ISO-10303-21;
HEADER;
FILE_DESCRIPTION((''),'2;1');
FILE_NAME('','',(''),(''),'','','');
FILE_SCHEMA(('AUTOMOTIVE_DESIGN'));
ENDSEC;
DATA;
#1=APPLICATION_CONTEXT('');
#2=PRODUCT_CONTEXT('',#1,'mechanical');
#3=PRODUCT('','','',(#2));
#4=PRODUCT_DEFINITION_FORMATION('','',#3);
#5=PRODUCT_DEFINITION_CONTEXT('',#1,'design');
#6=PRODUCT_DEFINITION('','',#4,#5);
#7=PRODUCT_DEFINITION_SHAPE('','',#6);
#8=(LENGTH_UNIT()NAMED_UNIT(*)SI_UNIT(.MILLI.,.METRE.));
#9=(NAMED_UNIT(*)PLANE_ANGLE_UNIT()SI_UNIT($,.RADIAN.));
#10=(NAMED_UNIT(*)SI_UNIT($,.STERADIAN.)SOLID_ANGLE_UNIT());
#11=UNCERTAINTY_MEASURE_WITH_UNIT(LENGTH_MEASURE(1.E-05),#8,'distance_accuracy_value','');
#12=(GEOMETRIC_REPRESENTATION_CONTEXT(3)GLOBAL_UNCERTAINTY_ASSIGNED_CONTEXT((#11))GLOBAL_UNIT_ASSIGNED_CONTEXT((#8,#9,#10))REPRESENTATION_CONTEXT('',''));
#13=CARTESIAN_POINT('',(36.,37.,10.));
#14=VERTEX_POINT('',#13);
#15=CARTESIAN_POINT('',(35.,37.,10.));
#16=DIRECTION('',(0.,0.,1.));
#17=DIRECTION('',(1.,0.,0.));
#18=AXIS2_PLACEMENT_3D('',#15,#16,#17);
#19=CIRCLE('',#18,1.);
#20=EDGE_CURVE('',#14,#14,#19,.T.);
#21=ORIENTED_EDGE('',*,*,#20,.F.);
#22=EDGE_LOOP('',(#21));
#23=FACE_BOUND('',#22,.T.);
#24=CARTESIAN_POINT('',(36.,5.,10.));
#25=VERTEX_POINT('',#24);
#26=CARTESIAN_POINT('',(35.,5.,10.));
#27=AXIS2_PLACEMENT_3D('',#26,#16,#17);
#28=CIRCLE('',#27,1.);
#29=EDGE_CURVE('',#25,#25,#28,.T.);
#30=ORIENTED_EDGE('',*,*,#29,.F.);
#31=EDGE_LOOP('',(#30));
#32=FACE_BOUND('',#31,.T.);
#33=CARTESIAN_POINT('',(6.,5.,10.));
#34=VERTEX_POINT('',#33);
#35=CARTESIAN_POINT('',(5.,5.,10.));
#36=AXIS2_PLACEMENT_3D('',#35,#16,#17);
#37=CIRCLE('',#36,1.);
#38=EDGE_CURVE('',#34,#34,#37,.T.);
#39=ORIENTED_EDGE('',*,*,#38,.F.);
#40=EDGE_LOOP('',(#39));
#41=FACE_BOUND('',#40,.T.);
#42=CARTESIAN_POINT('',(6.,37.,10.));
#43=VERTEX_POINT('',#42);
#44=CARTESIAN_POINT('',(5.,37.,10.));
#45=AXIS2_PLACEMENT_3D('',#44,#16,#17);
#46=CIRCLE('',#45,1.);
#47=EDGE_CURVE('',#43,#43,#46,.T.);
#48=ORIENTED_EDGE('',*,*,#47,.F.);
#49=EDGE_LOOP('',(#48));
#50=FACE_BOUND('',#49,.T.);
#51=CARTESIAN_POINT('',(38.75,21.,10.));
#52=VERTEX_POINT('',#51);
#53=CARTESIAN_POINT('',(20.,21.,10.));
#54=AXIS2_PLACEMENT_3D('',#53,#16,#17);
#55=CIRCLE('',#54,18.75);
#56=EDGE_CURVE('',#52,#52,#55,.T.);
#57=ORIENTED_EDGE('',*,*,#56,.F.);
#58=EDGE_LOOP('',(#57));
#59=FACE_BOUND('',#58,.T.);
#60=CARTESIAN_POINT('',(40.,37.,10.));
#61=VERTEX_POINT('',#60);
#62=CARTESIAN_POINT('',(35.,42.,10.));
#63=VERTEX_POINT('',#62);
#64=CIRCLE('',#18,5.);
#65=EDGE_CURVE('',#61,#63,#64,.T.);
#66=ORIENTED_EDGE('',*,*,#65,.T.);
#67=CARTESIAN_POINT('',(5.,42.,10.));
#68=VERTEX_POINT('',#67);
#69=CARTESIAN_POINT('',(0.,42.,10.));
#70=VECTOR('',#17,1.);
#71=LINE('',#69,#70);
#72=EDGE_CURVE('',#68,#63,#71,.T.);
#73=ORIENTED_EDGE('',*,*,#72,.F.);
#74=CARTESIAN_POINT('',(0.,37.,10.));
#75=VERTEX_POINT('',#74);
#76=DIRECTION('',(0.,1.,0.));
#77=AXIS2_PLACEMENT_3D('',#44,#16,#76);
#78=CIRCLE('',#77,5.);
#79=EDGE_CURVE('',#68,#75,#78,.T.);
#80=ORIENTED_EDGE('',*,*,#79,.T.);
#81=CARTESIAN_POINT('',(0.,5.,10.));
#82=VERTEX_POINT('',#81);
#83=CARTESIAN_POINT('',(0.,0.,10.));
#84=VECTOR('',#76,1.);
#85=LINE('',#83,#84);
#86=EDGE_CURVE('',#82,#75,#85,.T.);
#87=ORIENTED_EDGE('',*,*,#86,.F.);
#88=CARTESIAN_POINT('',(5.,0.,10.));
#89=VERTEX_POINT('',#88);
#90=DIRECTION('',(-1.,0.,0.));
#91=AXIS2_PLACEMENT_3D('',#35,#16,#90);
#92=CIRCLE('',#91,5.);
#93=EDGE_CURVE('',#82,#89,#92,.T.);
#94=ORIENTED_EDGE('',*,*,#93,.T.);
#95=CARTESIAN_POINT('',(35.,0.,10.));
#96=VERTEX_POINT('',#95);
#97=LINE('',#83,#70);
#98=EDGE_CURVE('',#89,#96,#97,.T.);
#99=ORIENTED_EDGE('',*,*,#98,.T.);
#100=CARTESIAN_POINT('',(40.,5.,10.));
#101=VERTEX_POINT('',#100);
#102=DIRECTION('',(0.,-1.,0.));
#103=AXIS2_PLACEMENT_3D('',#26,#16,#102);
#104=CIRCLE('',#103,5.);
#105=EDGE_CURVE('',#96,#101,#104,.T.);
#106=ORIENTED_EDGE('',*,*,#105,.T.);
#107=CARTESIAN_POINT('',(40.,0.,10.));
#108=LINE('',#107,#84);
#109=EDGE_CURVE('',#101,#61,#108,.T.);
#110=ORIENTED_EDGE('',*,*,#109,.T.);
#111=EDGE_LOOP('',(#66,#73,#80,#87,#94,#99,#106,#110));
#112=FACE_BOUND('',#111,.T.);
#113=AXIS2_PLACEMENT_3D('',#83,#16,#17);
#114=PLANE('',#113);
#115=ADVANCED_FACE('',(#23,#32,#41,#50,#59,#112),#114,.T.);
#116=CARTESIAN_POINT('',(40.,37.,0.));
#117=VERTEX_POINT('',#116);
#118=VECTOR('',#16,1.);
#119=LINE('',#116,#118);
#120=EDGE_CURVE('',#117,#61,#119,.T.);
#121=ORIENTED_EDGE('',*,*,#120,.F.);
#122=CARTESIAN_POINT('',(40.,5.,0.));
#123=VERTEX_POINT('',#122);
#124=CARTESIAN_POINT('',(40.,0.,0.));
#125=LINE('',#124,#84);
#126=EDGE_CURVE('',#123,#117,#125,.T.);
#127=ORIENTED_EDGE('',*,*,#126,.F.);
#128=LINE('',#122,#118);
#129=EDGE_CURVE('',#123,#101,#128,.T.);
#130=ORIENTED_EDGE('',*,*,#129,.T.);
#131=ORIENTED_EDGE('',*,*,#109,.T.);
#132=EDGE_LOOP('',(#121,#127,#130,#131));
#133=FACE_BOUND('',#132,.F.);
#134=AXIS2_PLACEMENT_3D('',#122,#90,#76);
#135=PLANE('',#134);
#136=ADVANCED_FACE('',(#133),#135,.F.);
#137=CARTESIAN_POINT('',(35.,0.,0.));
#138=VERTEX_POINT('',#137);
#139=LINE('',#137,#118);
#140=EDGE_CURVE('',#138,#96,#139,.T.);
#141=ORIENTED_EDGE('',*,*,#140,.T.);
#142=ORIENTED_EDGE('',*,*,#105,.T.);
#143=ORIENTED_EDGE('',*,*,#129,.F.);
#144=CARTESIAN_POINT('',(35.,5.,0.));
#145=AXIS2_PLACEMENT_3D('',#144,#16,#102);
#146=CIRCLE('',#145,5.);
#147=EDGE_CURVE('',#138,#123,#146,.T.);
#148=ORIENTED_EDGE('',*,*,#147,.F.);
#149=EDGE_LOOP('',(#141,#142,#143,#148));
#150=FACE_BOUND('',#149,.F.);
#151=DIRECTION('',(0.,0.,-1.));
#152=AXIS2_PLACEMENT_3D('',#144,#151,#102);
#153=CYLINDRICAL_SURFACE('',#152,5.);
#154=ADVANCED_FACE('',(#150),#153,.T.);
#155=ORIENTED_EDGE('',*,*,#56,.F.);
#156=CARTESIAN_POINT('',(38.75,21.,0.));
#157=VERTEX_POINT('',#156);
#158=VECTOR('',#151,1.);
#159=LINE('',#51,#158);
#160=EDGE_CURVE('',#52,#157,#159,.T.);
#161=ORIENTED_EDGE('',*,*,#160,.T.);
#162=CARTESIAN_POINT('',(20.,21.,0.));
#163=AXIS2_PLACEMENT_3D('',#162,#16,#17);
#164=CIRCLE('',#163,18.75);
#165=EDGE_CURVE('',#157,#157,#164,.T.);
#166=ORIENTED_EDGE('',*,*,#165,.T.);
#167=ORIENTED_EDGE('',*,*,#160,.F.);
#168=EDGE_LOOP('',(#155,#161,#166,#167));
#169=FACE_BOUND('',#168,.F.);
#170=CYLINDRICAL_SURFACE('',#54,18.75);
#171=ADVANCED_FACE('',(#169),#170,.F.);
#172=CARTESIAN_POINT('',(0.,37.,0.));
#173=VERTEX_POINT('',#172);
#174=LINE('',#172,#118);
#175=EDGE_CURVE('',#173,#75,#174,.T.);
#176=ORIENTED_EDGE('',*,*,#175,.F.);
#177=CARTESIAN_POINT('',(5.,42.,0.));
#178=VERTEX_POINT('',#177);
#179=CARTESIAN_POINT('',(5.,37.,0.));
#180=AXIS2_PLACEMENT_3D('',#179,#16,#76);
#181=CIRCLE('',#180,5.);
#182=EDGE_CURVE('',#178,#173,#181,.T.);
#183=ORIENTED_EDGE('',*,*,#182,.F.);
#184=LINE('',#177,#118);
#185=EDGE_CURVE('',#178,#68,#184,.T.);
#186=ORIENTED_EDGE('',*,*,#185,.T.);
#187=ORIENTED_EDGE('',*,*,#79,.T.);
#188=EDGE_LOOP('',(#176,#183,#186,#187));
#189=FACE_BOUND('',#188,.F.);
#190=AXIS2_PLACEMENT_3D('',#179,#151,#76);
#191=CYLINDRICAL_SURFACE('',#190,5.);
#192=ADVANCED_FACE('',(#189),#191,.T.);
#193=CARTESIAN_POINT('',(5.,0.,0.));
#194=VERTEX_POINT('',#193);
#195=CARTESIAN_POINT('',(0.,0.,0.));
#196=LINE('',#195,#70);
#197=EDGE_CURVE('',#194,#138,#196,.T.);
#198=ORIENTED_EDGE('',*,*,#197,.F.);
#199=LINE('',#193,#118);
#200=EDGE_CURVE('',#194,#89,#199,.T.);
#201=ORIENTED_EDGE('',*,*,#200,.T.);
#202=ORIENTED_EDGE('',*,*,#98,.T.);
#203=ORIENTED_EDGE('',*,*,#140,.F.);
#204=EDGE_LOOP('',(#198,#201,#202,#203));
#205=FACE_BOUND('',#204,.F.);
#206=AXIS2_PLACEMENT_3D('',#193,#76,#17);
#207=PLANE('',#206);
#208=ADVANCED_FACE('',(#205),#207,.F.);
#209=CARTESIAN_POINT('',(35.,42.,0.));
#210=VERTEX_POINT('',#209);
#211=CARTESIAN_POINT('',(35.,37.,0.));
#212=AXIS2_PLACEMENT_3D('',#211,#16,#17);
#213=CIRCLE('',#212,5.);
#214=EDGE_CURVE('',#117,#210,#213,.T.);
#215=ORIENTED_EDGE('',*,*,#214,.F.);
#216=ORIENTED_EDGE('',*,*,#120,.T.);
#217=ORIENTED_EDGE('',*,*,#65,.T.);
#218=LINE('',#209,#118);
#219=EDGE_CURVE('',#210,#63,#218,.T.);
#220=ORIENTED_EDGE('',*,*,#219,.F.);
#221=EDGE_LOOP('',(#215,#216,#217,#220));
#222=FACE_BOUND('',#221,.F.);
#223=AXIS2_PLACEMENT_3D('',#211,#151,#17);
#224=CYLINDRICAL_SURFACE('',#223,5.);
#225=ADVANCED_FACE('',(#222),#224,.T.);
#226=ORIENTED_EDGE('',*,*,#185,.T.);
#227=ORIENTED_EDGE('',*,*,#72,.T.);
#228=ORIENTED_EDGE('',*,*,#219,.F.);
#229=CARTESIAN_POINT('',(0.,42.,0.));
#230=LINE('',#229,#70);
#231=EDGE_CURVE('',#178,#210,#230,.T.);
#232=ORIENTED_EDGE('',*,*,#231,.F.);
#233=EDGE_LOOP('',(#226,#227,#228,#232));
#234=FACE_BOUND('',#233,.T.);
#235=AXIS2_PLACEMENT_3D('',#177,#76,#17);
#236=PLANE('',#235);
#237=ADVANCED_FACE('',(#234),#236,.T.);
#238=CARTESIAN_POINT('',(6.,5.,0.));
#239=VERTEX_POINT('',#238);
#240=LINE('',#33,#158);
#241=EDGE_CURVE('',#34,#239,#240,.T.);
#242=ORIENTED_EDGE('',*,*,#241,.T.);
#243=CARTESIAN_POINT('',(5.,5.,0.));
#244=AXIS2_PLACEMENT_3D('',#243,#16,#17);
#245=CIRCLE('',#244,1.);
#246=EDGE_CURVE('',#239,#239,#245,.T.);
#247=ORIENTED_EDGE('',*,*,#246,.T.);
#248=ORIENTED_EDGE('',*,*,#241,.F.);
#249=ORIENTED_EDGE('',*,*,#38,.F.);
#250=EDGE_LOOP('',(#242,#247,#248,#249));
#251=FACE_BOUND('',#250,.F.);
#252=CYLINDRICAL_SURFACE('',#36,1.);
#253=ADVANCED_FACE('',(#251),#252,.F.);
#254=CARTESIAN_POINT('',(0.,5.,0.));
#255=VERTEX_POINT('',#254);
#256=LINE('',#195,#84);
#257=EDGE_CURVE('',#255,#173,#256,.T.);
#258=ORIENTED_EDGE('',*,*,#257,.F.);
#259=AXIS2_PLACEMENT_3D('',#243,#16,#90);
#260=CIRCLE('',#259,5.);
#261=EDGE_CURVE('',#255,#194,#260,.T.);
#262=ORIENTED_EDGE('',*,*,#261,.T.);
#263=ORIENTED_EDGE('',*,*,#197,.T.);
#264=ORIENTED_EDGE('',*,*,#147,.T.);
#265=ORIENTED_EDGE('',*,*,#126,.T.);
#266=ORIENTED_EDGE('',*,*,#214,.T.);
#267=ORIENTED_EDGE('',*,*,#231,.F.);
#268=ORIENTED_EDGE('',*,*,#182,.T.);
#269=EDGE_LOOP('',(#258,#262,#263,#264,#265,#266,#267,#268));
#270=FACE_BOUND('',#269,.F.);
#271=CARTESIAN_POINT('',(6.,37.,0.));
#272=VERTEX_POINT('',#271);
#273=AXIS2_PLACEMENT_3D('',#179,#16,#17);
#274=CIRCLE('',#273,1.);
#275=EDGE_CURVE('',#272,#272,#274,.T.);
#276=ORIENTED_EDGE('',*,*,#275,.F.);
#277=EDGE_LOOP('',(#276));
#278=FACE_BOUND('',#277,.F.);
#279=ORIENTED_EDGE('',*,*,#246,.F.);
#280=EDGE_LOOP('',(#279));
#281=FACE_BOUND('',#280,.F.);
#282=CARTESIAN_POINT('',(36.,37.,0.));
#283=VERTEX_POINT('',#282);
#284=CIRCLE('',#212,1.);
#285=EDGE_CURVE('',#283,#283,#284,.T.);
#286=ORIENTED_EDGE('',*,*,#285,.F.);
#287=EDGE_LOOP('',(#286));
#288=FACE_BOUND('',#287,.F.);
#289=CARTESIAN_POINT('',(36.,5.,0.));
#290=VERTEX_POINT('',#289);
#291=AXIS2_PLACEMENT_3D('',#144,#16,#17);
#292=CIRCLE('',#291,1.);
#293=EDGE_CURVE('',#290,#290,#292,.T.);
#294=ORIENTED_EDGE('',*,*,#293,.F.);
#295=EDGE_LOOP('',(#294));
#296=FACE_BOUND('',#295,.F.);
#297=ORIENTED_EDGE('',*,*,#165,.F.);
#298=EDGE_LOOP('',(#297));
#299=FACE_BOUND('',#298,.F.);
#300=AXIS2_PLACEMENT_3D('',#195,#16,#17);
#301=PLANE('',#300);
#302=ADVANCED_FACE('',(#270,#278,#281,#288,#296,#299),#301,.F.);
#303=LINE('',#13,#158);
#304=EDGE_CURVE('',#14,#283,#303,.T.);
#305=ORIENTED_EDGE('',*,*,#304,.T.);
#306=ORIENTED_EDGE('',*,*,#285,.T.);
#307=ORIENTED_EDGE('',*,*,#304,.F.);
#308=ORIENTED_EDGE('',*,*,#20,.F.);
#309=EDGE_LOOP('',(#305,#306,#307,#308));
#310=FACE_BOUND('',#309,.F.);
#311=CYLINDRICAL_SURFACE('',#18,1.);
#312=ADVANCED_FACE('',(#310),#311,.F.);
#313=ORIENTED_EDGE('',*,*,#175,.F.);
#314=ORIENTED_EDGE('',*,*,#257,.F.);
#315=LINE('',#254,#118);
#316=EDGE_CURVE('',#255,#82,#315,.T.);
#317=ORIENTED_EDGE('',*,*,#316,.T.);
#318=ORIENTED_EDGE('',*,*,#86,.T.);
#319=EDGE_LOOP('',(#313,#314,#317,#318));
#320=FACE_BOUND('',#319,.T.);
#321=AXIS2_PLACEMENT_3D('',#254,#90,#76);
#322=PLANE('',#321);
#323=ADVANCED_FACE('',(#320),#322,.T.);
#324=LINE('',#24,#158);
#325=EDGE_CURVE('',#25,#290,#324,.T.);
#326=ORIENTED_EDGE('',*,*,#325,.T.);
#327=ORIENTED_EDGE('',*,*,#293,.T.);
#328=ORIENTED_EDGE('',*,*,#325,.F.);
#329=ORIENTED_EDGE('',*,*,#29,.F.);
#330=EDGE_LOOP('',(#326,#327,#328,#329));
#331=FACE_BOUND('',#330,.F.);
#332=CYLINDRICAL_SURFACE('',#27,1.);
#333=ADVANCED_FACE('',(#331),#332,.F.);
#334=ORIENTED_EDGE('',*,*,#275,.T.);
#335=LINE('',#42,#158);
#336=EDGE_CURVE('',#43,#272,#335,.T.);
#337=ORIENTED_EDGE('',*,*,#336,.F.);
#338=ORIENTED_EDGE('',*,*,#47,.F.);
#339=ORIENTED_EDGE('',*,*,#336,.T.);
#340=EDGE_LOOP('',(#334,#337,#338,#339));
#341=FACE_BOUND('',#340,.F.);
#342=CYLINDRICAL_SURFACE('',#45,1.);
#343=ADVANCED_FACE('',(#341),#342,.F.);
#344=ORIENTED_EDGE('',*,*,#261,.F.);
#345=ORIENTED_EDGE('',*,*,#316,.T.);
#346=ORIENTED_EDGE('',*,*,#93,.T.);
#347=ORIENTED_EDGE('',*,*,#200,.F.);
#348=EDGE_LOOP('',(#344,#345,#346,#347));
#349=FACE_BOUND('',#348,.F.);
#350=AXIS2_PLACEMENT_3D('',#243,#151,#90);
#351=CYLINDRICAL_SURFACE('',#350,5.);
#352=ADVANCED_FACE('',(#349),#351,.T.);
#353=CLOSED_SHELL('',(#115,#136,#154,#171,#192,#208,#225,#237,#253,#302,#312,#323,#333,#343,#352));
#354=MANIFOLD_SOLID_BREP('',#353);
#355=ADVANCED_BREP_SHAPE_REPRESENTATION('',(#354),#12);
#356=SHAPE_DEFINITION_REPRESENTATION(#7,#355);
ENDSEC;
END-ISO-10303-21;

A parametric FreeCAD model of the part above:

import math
import FreeCAD as App
import Part
import Sketcher

V = App.Vector
Q = App.Units.Quantity

doc = App.newDocument("Part")
body = doc.addObject("PartDesign::Body", "Body")

# Sketch on XY plane
sketch1 = body.newObject("Sketcher::SketchObject", "Sketch")
sketch1.AttachmentSupport = (doc.getObject("XY_Plane"), [""])
sketch1.MapMode = "FlatFace"
sketch1.addGeometry([
    Part.ArcOfCircle(Part.Circle(V(5, 5, 0), V(0, 0, 1), 5), math.radians(180), math.radians(270)),  # 0
    Part.LineSegment(V(5, 0, 0), V(35, 0, 0)),  # 1
    Part.ArcOfCircle(Part.Circle(V(35, 5, 0), V(0, 0, 1), 5), math.radians(-90), math.radians(0)),  # 2
    Part.LineSegment(V(40, 5, 0), V(40, 37, 0)),  # 3
    Part.ArcOfCircle(Part.Circle(V(35, 37, 0), V(0, 0, 1), 5), math.radians(0), math.radians(90)),  # 4
    Part.LineSegment(V(35, 42, 0), V(5, 42, 0)),  # 5
    Part.ArcOfCircle(Part.Circle(V(5, 37, 0), V(0, 0, 1), 5), math.radians(90), math.radians(180)),  # 6
    Part.LineSegment(V(0, 37, 0), V(0, 5, 0)),  # 7
], False)
sketch1.addConstraint([
    Sketcher.Constraint("Tangent", 0, 2, 1, 1),
    Sketcher.Constraint("Tangent", 1, 2, 2, 1),
    Sketcher.Constraint("Tangent", 2, 2, 3, 1),
    Sketcher.Constraint("Tangent", 3, 2, 4, 1),
    Sketcher.Constraint("Tangent", 4, 2, 5, 1),
    Sketcher.Constraint("Tangent", 5, 2, 6, 1),
    Sketcher.Constraint("Tangent", 6, 2, 7, 1),
    Sketcher.Constraint("Tangent", 7, 2, 0, 1),
    Sketcher.Constraint("Horizontal", 1),
    Sketcher.Constraint("Vertical", 3),
    Sketcher.Constraint("Horizontal", 5),
    Sketcher.Constraint("Vertical", 7),
    Sketcher.Constraint("Equal", 0, 2),
    Sketcher.Constraint("Equal", 2, 4),
    Sketcher.Constraint("Equal", 4, 6),
    Sketcher.Constraint("PointOnObject", 0, 2, -1),
    Sketcher.Constraint("PointOnObject", 6, 2, -2),
    Sketcher.Constraint("Radius", 0, Q("5 mm")),
    Sketcher.Constraint("DistanceX", 1, 1, 1, 2, Q("30 mm")),
    Sketcher.Constraint("DistanceY", 3, 1, 3, 2, Q("32 mm")),
])
pad1 = body.newObject("PartDesign::Pad", "Pad")
pad1.Profile = sketch1
pad1.Length = 10

# Sketch on XY plane
sketch2 = body.newObject("Sketcher::SketchObject", "Sketch001")
sketch2.AttachmentSupport = (doc.getObject("XY_Plane"), [""])
sketch2.MapMode = "FlatFace"
sketch2.AttachmentOffset = App.Placement(V(0, 0, 10), App.Rotation())
sketch2.addGeometry(Part.Circle(V(20, 21, 0), V(0, 0, 1), 19), False)
sketch2.addConstraint([
    Sketcher.Constraint("Diameter", 0, Q("37.5 mm")),
    Sketcher.Constraint("DistanceX", -1, 1, 0, 3, Q("20 mm")),
    Sketcher.Constraint("DistanceY", -1, 1, 0, 3, Q("21 mm")),
])
pocket1 = body.newObject("PartDesign::Pocket", "Pocket")
pocket1.Profile = sketch2
pocket1.Type = "ThroughAll"

# Sketch on XY plane
sketch3 = body.newObject("Sketcher::SketchObject", "Sketch002")
sketch3.AttachmentSupport = (doc.getObject("XY_Plane"), [""])
sketch3.MapMode = "FlatFace"
sketch3.AttachmentOffset = App.Placement(V(0, 0, 10), App.Rotation())
sketch3.addGeometry([
    Part.Circle(V(5, 37, 0), V(0, 0, 1), 1),
    Part.Circle(V(35, 37, 0), V(0, 0, 1), 1),
    Part.Circle(V(35, 5, 0), V(0, 0, 1), 1),
    Part.Circle(V(5, 5, 0), V(0, 0, 1), 1),
], False)
sketch3.addConstraint([
    Sketcher.Constraint("Equal", 0, 1),
    Sketcher.Constraint("Equal", 1, 2),
    Sketcher.Constraint("Equal", 2, 3),
    Sketcher.Constraint("Horizontal", 0, 3, 1, 3),
    Sketcher.Constraint("Horizontal", 2, 3, 3, 3),
    Sketcher.Constraint("Vertical", 1, 3, 2, 3),
    Sketcher.Constraint("Vertical", 0, 3, 3, 3),
    Sketcher.Constraint("Diameter", 0, Q("2 mm")),
    Sketcher.Constraint("DistanceX", -1, 1, 0, 3, Q("5 mm")),
    Sketcher.Constraint("DistanceY", -1, 1, 0, 3, Q("37 mm")),
    Sketcher.Constraint("DistanceX", -1, 1, 1, 3, Q("35 mm")),
    Sketcher.Constraint("DistanceY", -1, 1, 2, 3, Q("5 mm")),
])
pocket2 = body.newObject("PartDesign::Pocket", "Pocket001")
pocket2.Profile = sketch3
pocket2.Type = "ThroughAll"

doc.recompute()
